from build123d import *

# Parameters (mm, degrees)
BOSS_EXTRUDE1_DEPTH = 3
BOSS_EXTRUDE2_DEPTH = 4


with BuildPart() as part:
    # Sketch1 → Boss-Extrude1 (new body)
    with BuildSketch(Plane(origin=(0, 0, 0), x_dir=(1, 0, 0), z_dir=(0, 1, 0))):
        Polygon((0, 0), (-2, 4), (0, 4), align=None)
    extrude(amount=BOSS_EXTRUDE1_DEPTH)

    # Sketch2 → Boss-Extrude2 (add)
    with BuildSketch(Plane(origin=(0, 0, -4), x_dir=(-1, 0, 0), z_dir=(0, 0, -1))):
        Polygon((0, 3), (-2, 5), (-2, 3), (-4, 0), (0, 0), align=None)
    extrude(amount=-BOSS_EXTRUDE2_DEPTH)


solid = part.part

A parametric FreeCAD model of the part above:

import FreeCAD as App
import Part
import Sketcher
Q = App.Units.Quantity

doc = App.newDocument("Part")
body = doc.addObject("PartDesign::Body", "Body")

# Sketch on XZ plane
sketch1 = doc.addObject("Sketcher::SketchObject", "Sketch")
body.addObject(sketch1)
sketch1.AttachmentSupport = (doc.XZ_Plane, [""])
sketch1.MapMode = "FlatFace"
sketch1.addGeometry([
    Part.LineSegment(App.Vector(-2, -4, 0), App.Vector(0, 0, 0)),
    Part.LineSegment(App.Vector(0, 0, 0), App.Vector(0, -4, 0)),
    Part.LineSegment(App.Vector(0, -4, 0), App.Vector(-2, -4, 0)),
], False)
sketch1.addConstraint([
    Sketcher.Constraint("Coincident", 0, 2, 1, 1),
    Sketcher.Constraint("Coincident", 1, 2, 2, 1),
    Sketcher.Constraint("Coincident", 2, 2, 0, 1),
    Sketcher.Constraint("Vertical", 1),
    Sketcher.Constraint("Horizontal", 2),
    Sketcher.Constraint("Coincident", 0, 2, -1, 1),
    Sketcher.Constraint("DistanceX", 2, 2, 2, 1, 2.0),
    Sketcher.Constraint("DistanceY", 1, 2, 1, 1, 4.0),
])
pad1 = doc.addObject("PartDesign::Pad", "Pad")
body.addObject(pad1)
pad1.Profile = sketch1
pad1.Length = 3
pad1.Reversed = True

# Sketch on XY plane
sketch2 = doc.addObject("Sketcher::SketchObject", "Sketch001")
body.addObject(sketch2)
sketch2.AttachmentSupport = (doc.XY_Plane, [""])
sketch2.MapMode = "FlatFace"
sketch2.AttachmentOffset = App.Placement(App.Vector(0, 0, -4), App.Rotation())
sketch2.addGeometry([
    Part.LineSegment(App.Vector(0, 3, 0), App.Vector(2, 5, 0)),  # 0
    Part.LineSegment(App.Vector(2, 5, 0), App.Vector(2, 3, 0)),  # 1
    Part.LineSegment(App.Vector(2, 3, 0), App.Vector(4, 0, 0)),  # 2
    Part.LineSegment(App.Vector(4, 0, 0), App.Vector(0, 0, 0)),  # 3
    Part.LineSegment(App.Vector(0, 0, 0), App.Vector(0, 3, 0)),  # 4
], False)
sketch2.addConstraint([
    Sketcher.Constraint("Coincident", 0, 2, 1, 1),
    Sketcher.Constraint("Coincident", 1, 2, 2, 1),
    Sketcher.Constraint("Coincident", 2, 2, 3, 1),
    Sketcher.Constraint("Coincident", 3, 2, 4, 1),
    Sketcher.Constraint("Coincident", 4, 2, 0, 1),
    Sketcher.Constraint("Vertical", 1),
    Sketcher.Constraint("Horizontal", 3),
    Sketcher.Constraint("Vertical", 4),
    Sketcher.Constraint("Coincident", 3, 2, -1, 1),
    Sketcher.Constraint("Horizontal", 1, 2, 4, 2),
    Sketcher.Constraint("DistanceX", 3, 2, 3, 1, 4.0),
    Sketcher.Constraint("DistanceY", 1, 2, 1, 1, 2.0),
    Sketcher.Constraint("DistanceY", 4, 1, 4, 2, 3.0),
    Sketcher.Constraint("Angle", 0, Q("45 deg")),
])
pad2 = doc.addObject("PartDesign::Pad", "Pad001")
body.addObject(pad2)
pad2.Profile = sketch2
pad2.Length = 4

doc.recompute()
